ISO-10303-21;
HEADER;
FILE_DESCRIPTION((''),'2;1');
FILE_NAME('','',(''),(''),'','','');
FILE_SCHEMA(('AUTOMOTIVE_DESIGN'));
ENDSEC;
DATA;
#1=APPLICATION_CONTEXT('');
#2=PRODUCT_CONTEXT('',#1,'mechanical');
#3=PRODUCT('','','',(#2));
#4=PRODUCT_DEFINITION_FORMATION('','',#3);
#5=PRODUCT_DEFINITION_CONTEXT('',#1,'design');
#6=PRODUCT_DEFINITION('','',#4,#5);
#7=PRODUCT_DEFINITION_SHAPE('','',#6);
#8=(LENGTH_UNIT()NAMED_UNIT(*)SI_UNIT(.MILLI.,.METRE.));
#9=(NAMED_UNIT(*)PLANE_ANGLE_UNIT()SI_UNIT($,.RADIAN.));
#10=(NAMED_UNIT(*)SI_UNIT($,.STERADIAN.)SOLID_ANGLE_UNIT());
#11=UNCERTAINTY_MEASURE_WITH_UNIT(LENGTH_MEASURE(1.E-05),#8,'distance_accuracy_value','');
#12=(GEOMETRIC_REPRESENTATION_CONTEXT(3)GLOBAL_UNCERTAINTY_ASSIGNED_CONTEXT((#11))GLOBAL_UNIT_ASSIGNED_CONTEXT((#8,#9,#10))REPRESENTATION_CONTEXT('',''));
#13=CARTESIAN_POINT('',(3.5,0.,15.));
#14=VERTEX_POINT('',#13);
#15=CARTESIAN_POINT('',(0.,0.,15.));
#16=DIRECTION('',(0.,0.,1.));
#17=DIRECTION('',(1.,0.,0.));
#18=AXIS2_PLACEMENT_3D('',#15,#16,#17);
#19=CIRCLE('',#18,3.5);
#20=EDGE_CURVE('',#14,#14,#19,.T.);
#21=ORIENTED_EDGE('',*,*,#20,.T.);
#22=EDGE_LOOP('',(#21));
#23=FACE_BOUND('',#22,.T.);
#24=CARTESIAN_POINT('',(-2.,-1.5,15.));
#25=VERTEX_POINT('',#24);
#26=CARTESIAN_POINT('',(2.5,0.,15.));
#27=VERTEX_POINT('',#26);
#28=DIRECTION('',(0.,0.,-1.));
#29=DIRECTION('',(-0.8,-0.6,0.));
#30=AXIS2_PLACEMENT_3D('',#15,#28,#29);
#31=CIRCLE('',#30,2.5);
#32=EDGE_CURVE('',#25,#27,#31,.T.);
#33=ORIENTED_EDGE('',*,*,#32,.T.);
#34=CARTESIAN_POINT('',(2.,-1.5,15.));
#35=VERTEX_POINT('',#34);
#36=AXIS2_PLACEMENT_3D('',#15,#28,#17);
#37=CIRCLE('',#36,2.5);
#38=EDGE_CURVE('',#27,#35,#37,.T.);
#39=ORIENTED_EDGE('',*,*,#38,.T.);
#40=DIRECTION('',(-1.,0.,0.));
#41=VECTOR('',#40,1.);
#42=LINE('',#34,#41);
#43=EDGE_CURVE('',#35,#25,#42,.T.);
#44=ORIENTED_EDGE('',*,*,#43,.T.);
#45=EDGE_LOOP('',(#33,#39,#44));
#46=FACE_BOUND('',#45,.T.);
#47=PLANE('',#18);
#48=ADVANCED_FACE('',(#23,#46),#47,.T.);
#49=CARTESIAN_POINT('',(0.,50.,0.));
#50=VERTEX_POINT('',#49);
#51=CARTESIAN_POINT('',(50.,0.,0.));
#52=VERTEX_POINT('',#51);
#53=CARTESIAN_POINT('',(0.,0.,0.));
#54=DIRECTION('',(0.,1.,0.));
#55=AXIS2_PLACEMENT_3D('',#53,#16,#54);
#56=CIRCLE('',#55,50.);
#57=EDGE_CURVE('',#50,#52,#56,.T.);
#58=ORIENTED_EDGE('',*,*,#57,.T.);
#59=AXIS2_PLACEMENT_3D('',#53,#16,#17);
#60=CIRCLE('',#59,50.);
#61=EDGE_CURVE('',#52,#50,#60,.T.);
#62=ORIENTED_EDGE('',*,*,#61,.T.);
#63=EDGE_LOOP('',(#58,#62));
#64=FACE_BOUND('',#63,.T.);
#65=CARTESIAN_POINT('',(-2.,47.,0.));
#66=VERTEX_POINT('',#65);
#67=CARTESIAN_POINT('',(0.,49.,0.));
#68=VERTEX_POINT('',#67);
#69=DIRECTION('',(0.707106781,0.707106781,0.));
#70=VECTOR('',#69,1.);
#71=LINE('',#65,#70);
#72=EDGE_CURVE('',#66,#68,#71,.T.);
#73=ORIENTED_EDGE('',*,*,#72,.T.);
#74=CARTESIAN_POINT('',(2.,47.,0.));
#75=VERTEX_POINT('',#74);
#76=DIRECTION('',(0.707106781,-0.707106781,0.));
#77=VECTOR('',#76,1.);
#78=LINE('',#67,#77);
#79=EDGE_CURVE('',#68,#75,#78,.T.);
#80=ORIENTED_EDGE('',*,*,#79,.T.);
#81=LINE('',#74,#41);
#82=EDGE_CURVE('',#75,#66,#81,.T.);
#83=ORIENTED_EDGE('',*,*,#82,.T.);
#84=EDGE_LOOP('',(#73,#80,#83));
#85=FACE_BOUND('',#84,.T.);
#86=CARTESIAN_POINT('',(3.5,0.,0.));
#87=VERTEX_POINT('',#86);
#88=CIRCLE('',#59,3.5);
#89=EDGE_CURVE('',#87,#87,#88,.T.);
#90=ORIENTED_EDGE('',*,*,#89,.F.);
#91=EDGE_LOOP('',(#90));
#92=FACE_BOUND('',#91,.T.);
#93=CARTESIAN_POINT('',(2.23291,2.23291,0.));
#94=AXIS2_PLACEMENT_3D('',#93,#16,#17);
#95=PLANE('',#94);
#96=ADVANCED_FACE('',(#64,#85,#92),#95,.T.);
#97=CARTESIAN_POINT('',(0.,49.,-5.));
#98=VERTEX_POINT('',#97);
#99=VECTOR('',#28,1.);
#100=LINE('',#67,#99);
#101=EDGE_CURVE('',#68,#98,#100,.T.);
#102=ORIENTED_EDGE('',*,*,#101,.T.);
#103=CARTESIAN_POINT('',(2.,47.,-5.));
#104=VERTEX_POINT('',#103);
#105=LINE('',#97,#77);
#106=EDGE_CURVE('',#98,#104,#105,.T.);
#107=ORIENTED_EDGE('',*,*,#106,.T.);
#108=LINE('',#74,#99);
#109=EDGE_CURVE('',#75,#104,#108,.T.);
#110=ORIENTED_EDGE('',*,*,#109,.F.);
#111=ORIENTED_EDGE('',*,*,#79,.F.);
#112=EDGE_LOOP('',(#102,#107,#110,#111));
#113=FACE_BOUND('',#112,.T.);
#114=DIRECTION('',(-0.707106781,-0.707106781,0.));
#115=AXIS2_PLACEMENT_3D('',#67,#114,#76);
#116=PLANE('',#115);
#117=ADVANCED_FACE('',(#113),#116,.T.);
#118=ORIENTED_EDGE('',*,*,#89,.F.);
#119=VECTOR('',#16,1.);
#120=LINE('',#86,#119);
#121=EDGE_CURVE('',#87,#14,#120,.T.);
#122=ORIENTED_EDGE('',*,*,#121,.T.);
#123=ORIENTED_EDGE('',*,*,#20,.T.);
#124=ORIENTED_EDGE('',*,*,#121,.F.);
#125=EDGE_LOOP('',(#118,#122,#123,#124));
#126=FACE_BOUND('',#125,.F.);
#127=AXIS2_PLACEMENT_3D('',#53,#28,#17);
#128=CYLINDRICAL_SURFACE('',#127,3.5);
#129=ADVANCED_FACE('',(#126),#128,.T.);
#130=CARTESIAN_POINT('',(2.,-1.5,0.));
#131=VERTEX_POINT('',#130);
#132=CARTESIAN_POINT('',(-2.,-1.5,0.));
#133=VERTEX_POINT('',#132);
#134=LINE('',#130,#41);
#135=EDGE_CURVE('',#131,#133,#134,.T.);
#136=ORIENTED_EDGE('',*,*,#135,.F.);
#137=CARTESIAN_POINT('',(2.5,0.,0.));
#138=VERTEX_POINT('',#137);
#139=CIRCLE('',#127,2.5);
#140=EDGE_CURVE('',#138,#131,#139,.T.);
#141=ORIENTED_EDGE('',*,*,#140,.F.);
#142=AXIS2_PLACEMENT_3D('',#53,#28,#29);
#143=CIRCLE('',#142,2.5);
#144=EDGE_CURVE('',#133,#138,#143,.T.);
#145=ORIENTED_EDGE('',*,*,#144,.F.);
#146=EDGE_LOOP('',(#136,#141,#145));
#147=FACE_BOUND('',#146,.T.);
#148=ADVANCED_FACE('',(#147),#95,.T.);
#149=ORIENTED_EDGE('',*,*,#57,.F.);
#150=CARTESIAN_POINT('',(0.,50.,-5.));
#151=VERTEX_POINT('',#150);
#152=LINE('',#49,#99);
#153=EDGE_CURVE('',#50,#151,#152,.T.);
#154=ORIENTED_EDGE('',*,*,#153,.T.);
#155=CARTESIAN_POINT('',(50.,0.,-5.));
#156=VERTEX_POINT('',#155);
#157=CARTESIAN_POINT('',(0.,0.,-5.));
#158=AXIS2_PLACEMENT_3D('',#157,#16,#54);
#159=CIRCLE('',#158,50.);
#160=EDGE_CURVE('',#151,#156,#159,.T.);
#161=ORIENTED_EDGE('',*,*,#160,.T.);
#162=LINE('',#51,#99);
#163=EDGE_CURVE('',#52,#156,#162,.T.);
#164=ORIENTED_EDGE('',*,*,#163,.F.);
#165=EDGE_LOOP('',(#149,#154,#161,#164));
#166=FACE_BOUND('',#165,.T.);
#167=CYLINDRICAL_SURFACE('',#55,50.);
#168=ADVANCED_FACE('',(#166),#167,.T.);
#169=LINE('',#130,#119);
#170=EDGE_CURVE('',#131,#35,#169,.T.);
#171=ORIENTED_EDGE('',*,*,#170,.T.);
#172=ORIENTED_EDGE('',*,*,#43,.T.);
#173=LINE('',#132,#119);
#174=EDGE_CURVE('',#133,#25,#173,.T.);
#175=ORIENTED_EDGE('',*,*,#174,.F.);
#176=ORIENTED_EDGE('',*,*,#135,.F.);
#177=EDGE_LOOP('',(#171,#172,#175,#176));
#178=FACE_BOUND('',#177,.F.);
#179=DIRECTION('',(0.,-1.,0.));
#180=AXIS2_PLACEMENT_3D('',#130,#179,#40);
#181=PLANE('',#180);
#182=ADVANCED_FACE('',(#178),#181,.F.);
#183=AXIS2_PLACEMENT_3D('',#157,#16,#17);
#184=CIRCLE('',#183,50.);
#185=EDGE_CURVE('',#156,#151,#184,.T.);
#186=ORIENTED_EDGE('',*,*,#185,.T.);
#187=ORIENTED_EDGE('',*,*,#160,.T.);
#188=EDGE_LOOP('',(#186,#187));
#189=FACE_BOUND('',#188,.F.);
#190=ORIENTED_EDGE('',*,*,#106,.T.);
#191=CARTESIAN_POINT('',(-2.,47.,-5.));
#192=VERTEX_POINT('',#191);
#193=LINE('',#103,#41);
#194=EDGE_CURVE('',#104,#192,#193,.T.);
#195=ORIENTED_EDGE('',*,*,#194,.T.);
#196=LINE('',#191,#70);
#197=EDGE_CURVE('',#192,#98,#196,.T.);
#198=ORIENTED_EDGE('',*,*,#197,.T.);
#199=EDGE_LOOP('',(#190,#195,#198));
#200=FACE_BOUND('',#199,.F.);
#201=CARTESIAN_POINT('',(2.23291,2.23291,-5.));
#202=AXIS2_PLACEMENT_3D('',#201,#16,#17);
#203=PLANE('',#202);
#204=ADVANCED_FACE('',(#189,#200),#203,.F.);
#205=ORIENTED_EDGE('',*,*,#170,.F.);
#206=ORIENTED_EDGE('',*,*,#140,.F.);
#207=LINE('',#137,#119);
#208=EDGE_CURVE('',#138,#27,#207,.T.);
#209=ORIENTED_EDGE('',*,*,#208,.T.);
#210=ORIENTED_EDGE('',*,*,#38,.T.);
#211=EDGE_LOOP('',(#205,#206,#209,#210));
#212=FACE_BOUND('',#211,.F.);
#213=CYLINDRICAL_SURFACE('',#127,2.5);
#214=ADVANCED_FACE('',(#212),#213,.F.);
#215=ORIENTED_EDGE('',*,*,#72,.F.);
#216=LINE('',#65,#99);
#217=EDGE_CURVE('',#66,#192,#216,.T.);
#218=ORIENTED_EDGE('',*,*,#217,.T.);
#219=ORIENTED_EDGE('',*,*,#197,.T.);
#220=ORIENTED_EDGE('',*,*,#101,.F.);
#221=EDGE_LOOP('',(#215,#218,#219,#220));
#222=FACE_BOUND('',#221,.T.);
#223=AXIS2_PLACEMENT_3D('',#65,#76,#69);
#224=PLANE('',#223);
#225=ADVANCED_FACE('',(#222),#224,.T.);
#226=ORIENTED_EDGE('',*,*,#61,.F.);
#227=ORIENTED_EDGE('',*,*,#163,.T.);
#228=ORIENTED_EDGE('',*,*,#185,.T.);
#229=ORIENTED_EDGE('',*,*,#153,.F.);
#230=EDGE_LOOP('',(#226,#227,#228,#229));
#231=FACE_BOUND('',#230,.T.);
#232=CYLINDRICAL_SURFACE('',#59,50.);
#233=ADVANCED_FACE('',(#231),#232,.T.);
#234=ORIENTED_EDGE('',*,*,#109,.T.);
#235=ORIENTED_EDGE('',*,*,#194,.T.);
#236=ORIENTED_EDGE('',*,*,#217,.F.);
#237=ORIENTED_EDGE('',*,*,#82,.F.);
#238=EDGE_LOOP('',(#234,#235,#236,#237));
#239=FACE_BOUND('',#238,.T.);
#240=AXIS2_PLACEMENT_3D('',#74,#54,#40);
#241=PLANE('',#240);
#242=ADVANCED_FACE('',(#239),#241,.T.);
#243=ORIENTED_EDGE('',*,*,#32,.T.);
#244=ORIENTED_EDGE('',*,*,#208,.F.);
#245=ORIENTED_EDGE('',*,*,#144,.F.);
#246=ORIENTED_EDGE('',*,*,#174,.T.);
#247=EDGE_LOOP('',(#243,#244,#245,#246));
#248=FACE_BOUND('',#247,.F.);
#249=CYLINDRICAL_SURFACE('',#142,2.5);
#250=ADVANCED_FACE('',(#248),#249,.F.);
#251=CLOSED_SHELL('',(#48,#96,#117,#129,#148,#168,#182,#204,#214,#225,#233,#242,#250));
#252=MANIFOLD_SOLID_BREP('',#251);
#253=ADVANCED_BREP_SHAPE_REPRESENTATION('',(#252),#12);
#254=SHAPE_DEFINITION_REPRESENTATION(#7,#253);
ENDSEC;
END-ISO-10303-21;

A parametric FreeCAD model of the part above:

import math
import FreeCAD as App
import Part
import Sketcher
from FreeCAD import Vector


def add_polygon(sketch, points):
    """Adds a closed chain of lines whose ends are joined by coincident constraints."""
    first, n = sketch.GeometryCount, len(points)
    for a, b in zip(points, points[1:] + points[:1]):
        sketch.addGeometry(Part.LineSegment(App.Vector(*a, 0), App.Vector(*b, 0)), False)
    for i in range(n):
        sketch.addConstraint(Sketcher.Constraint("Coincident", first + i, 2, first + (i + 1) % n, 1))

doc = App.newDocument("Part")
params = doc.addObject("Spreadsheet::Sheet", "Params")
for row, (alias, value) in enumerate([
    ("sketch1_diameter", "7 mm"),
    ("sketch1_radius", "2.5 mm"),
    ("sketch1_width", "4 mm"),
    ("pad1_length", "15 mm"),
    ("sketch2_radius", "50 mm"),
    ("sketch2_width", "4 mm"),
    ("pad2_length", "5 mm"),
], start=1):
    params.set(f"A{row}", alias)
    params.set(f"B{row}", "=" + value)
    params.setAlias(f"B{row}", alias)

body = doc.addObject("PartDesign::Body", "Body")

# Sketch on XY plane
sketch1 = body.newObject("Sketcher::SketchObject", "Sketch")
sketch1.AttachmentSupport = (doc.getObject("XY_Plane"), [""])
sketch1.MapMode = "FlatFace"
sketch1.addGeometry(Part.Circle(Vector(0, 0, 0), Vector(0, 0, 1), 3.5), False)
sketch1.addGeometry(Part.ArcOfCircle(Part.Circle(Vector(0, 0, 0), Vector(0, 0, 1), 2.5), math.radians(-37), math.radians(0)), False)
sketch1.addGeometry(Part.LineSegment(Vector(2, -1.5, 0), Vector(-2, -1.5, 0)), False)
sketch1.addGeometry(Part.ArcOfCircle(Part.Circle(Vector(0, 0, 0), Vector(0, 0, 1), 2.5), math.radians(0), math.radians(217)), False)
sketch1.addConstraint(Sketcher.Constraint("Coincident", 1, 1, 2, 1))
sketch1.addConstraint(Sketcher.Constraint("Coincident", 2, 2, 3, 2))
sketch1.addConstraint(Sketcher.Constraint("Tangent", 3, 1, 1, 2))
sketch1.addConstraint(Sketcher.Constraint("Horizontal", 2))
sketch1.addConstraint(Sketcher.Constraint("Coincident", 0, 3, -1, 1))
sketch1.addConstraint(Sketcher.Constraint("Coincident", 1, 3, -1, 1))
sketch1.addConstraint(Sketcher.Constraint("Equal", 1, 3))
sketch1.addConstraint(Sketcher.Constraint("PointOnObject", 3, 1, -1))
sketch1.addConstraint(Sketcher.Constraint("Diameter", 0, 7.0))
sketch1.addConstraint(Sketcher.Constraint("Radius", 1, 2.5))
sketch1.addConstraint(Sketcher.Constraint("DistanceX", 2, 2, 2, 1, 4.0))
sketch1.setExpression("Constraints[8]", "Params.sketch1_diameter")
sketch1.setExpression("Constraints[9]", "Params.sketch1_radius")
sketch1.setExpression("Constraints[10]", "Params.sketch1_width")
pad1 = body.newObject("PartDesign::Pad", "Pad")
pad1.Profile = sketch1
pad1.setExpression("Length", "Params.pad1_length")

# Sketch on XY plane
sketch2 = body.newObject("Sketcher::SketchObject", "Sketch001")
sketch2.AttachmentSupport = (doc.getObject("XY_Plane"), [""])
sketch2.MapMode = "FlatFace"
sketch2.addGeometry(Part.ArcOfCircle(Part.Circle(Vector(0, 0, 0), Vector(0, 0, 1), 50), math.radians(90), math.radians(360)), False)  # 0
sketch2.addGeometry(Part.ArcOfCircle(Part.Circle(Vector(0, 0, 0), Vector(0, 0, 1), 50), math.radians(0), math.radians(90)), False)  # 1
add_polygon(sketch2, [(2, 47), (-2, 47), (0, 49)])  # lines 2-4
sketch2.addConstraint(Sketcher.Constraint("Tangent", 0, 1, 1, 2))
sketch2.addConstraint(Sketcher.Constraint("Coincident", 1, 1, 0, 2))
sketch2.addConstraint(Sketcher.Constraint("Horizontal", 2))
sketch2.addConstraint(Sketcher.Constraint("Coincident", 0, 3, -1, 1))
sketch2.addConstraint(Sketcher.Constraint("PointOnObject", 0, 1, -2))
sketch2.addConstraint(Sketcher.Constraint("PointOnObject", 1, 1, -1))
sketch2.addConstraint(Sketcher.Constraint("PointOnObject", 3, 2, -2))
sketch2.addConstraint(Sketcher.Constraint("Perpendicular", 3, 4))
sketch2.addConstraint(Sketcher.Constraint("Equal", 3, 4))
sketch2.addConstraint(Sketcher.Constraint("Radius", 0, 50.0))
sketch2.addConstraint(Sketcher.Constraint("DistanceX", 2, 2, 2, 1, 4.0))
sketch2.addConstraint(Sketcher.Constraint("DistanceY", -1, 1, 2, 2, 47.0))
sketch2.setExpression("Constraints[12]", "Params.sketch2_radius")
sketch2.setExpression("Constraints[13]", "Params.sketch2_width")
pad2 = body.newObject("PartDesign::Pad", "Pad001")
pad2.Profile = sketch2
pad2.setExpression("Length", "Params.pad2_length")
pad2.Reversed = True

doc.recompute()
